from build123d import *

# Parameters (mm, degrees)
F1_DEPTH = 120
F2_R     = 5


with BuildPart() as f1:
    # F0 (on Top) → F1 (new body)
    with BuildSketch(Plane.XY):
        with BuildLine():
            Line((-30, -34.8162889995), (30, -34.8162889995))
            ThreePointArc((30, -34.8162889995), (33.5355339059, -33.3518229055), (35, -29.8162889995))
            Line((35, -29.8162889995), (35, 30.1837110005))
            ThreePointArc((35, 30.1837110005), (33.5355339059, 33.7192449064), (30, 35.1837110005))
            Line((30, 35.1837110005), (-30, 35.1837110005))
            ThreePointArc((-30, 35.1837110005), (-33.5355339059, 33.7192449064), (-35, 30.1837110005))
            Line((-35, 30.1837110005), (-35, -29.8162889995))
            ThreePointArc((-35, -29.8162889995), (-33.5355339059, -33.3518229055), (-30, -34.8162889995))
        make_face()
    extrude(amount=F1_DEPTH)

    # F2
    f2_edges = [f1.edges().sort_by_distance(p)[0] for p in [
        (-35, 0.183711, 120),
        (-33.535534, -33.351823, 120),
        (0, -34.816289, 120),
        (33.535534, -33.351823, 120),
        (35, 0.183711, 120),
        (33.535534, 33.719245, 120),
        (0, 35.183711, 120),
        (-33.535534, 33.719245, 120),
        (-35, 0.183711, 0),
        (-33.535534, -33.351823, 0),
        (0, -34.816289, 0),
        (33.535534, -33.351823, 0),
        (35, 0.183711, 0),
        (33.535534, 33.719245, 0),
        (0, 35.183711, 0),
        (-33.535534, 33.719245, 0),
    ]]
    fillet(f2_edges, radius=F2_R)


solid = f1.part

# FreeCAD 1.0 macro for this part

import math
import FreeCAD as App
import Part
import Sketcher


def edges_at(feature, points):
    """Names of the edges that pass closest to the given points."""
    edges = feature.Shape.Edges
    near = lambda p: min(range(len(edges)), key=lambda i: edges[i].distToShape(Part.Vertex(*p))[0])
    return sorted({f"Edge{near(p) + 1}" for p in points})

doc = App.newDocument("Part")
body = doc.addObject("PartDesign::Body", "Body")

# Sketch on XY plane
sketch1 = body.newObject("Sketcher::SketchObject", "Sketch")
sketch1.AttachmentSupport = (doc.getObject("XY_Plane"), [""])
sketch1.MapMode = "FlatFace"
sketch1.addGeometry(Part.LineSegment(App.Vector(-30, -35, 0), App.Vector(30, -35, 0)), False)
sketch1.addGeometry(Part.ArcOfCircle(Part.Circle(App.Vector(30, -30, 0), App.Vector(0, 0, 1), 5), math.radians(-90), math.radians(0)), False)
sketch1.addGeometry(Part.LineSegment(App.Vector(35, -30, 0), App.Vector(35, 30, 0)), False)
sketch1.addGeometry(Part.ArcOfCircle(Part.Circle(App.Vector(30, 30, 0), App.Vector(0, 0, 1), 5), math.radians(0), math.radians(90)), False)
sketch1.addGeometry(Part.LineSegment(App.Vector(30, 35, 0), App.Vector(-30, 35, 0)), False)
sketch1.addGeometry(Part.ArcOfCircle(Part.Circle(App.Vector(-30, 30, 0), App.Vector(0, 0, 1), 5), math.radians(90), math.radians(180)), False)
sketch1.addGeometry(Part.LineSegment(App.Vector(-35, 30, 0), App.Vector(-35, -30, 0)), False)
sketch1.addGeometry(Part.ArcOfCircle(Part.Circle(App.Vector(-30, -30, 0), App.Vector(0, 0, 1), 5), math.radians(180), math.radians(270)), False)
sketch1.addConstraint(Sketcher.Constraint("Tangent", 0, 2, 1, 1))
sketch1.addConstraint(Sketcher.Constraint("Tangent", 1, 2, 2, 1))
sketch1.addConstraint(Sketcher.Constraint("Tangent", 2, 2, 3, 1))
sketch1.addConstraint(Sketcher.Constraint("Tangent", 3, 2, 4, 1))
sketch1.addConstraint(Sketcher.Constraint("Tangent", 4, 2, 5, 1))
sketch1.addConstraint(Sketcher.Constraint("Tangent", 5, 2, 6, 1))
sketch1.addConstraint(Sketcher.Constraint("Tangent", 6, 2, 7, 1))
sketch1.addConstraint(Sketcher.Constraint("Tangent", 7, 2, 0, 1))
sketch1.addConstraint(Sketcher.Constraint("Horizontal", 0))
sketch1.addConstraint(Sketcher.Constraint("Vertical", 2))
sketch1.addConstraint(Sketcher.Constraint("Horizontal", 4))
sketch1.addConstraint(Sketcher.Constraint("Vertical", 6))
sketch1.addConstraint(Sketcher.Constraint("Equal", 1, 3))
sketch1.addConstraint(Sketcher.Constraint("Equal", 3, 5))
sketch1.addConstraint(Sketcher.Constraint("Equal", 5, 7))
sketch1.addConstraint(Sketcher.Constraint("Equal", 4, 2))
sketch1.addConstraint(Sketcher.Constraint("Radius", 1, 5.0))
sketch1.addConstraint(Sketcher.Constraint("DistanceX", 0, 1, 0, 2, 60.0))
sketch1.addConstraint(Sketcher.Constraint("DistanceX", -1, 1, 1, 3, 30.0))
sketch1.addConstraint(Sketcher.Constraint("DistanceY", 1, 3, -1, 1, 29.816289))
pad1 = body.newObject("PartDesign::Pad", "Pad")
pad1.Profile = sketch1
pad1.Length = 120
doc.recompute()

fillet = body.newObject("PartDesign::Fillet", "Fillet")
fillet.Base = (pad1, edges_at(pad1, [
    (-35, 0.184, 120),
    (-33.536, -33.352, 120),
    (0, -34.816, 120),
    (33.536, -33.352, 120),
    (35, 0.184, 120),
    (33.536, 33.719, 120),
    (0, 35.184, 120),
    (-33.536, 33.719, 120),
    (-35, 0.184, 0),
    (-33.536, -33.352, 0),
    (0, -34.816, 0),
    (33.536, -33.352, 0),
    (35, 0.184, 0),
    (33.536, 33.719, 0),
    (0, 35.184, 0),
    (-33.536, 33.719, 0),
]))
fillet.Radius = 5

doc.recompute()
